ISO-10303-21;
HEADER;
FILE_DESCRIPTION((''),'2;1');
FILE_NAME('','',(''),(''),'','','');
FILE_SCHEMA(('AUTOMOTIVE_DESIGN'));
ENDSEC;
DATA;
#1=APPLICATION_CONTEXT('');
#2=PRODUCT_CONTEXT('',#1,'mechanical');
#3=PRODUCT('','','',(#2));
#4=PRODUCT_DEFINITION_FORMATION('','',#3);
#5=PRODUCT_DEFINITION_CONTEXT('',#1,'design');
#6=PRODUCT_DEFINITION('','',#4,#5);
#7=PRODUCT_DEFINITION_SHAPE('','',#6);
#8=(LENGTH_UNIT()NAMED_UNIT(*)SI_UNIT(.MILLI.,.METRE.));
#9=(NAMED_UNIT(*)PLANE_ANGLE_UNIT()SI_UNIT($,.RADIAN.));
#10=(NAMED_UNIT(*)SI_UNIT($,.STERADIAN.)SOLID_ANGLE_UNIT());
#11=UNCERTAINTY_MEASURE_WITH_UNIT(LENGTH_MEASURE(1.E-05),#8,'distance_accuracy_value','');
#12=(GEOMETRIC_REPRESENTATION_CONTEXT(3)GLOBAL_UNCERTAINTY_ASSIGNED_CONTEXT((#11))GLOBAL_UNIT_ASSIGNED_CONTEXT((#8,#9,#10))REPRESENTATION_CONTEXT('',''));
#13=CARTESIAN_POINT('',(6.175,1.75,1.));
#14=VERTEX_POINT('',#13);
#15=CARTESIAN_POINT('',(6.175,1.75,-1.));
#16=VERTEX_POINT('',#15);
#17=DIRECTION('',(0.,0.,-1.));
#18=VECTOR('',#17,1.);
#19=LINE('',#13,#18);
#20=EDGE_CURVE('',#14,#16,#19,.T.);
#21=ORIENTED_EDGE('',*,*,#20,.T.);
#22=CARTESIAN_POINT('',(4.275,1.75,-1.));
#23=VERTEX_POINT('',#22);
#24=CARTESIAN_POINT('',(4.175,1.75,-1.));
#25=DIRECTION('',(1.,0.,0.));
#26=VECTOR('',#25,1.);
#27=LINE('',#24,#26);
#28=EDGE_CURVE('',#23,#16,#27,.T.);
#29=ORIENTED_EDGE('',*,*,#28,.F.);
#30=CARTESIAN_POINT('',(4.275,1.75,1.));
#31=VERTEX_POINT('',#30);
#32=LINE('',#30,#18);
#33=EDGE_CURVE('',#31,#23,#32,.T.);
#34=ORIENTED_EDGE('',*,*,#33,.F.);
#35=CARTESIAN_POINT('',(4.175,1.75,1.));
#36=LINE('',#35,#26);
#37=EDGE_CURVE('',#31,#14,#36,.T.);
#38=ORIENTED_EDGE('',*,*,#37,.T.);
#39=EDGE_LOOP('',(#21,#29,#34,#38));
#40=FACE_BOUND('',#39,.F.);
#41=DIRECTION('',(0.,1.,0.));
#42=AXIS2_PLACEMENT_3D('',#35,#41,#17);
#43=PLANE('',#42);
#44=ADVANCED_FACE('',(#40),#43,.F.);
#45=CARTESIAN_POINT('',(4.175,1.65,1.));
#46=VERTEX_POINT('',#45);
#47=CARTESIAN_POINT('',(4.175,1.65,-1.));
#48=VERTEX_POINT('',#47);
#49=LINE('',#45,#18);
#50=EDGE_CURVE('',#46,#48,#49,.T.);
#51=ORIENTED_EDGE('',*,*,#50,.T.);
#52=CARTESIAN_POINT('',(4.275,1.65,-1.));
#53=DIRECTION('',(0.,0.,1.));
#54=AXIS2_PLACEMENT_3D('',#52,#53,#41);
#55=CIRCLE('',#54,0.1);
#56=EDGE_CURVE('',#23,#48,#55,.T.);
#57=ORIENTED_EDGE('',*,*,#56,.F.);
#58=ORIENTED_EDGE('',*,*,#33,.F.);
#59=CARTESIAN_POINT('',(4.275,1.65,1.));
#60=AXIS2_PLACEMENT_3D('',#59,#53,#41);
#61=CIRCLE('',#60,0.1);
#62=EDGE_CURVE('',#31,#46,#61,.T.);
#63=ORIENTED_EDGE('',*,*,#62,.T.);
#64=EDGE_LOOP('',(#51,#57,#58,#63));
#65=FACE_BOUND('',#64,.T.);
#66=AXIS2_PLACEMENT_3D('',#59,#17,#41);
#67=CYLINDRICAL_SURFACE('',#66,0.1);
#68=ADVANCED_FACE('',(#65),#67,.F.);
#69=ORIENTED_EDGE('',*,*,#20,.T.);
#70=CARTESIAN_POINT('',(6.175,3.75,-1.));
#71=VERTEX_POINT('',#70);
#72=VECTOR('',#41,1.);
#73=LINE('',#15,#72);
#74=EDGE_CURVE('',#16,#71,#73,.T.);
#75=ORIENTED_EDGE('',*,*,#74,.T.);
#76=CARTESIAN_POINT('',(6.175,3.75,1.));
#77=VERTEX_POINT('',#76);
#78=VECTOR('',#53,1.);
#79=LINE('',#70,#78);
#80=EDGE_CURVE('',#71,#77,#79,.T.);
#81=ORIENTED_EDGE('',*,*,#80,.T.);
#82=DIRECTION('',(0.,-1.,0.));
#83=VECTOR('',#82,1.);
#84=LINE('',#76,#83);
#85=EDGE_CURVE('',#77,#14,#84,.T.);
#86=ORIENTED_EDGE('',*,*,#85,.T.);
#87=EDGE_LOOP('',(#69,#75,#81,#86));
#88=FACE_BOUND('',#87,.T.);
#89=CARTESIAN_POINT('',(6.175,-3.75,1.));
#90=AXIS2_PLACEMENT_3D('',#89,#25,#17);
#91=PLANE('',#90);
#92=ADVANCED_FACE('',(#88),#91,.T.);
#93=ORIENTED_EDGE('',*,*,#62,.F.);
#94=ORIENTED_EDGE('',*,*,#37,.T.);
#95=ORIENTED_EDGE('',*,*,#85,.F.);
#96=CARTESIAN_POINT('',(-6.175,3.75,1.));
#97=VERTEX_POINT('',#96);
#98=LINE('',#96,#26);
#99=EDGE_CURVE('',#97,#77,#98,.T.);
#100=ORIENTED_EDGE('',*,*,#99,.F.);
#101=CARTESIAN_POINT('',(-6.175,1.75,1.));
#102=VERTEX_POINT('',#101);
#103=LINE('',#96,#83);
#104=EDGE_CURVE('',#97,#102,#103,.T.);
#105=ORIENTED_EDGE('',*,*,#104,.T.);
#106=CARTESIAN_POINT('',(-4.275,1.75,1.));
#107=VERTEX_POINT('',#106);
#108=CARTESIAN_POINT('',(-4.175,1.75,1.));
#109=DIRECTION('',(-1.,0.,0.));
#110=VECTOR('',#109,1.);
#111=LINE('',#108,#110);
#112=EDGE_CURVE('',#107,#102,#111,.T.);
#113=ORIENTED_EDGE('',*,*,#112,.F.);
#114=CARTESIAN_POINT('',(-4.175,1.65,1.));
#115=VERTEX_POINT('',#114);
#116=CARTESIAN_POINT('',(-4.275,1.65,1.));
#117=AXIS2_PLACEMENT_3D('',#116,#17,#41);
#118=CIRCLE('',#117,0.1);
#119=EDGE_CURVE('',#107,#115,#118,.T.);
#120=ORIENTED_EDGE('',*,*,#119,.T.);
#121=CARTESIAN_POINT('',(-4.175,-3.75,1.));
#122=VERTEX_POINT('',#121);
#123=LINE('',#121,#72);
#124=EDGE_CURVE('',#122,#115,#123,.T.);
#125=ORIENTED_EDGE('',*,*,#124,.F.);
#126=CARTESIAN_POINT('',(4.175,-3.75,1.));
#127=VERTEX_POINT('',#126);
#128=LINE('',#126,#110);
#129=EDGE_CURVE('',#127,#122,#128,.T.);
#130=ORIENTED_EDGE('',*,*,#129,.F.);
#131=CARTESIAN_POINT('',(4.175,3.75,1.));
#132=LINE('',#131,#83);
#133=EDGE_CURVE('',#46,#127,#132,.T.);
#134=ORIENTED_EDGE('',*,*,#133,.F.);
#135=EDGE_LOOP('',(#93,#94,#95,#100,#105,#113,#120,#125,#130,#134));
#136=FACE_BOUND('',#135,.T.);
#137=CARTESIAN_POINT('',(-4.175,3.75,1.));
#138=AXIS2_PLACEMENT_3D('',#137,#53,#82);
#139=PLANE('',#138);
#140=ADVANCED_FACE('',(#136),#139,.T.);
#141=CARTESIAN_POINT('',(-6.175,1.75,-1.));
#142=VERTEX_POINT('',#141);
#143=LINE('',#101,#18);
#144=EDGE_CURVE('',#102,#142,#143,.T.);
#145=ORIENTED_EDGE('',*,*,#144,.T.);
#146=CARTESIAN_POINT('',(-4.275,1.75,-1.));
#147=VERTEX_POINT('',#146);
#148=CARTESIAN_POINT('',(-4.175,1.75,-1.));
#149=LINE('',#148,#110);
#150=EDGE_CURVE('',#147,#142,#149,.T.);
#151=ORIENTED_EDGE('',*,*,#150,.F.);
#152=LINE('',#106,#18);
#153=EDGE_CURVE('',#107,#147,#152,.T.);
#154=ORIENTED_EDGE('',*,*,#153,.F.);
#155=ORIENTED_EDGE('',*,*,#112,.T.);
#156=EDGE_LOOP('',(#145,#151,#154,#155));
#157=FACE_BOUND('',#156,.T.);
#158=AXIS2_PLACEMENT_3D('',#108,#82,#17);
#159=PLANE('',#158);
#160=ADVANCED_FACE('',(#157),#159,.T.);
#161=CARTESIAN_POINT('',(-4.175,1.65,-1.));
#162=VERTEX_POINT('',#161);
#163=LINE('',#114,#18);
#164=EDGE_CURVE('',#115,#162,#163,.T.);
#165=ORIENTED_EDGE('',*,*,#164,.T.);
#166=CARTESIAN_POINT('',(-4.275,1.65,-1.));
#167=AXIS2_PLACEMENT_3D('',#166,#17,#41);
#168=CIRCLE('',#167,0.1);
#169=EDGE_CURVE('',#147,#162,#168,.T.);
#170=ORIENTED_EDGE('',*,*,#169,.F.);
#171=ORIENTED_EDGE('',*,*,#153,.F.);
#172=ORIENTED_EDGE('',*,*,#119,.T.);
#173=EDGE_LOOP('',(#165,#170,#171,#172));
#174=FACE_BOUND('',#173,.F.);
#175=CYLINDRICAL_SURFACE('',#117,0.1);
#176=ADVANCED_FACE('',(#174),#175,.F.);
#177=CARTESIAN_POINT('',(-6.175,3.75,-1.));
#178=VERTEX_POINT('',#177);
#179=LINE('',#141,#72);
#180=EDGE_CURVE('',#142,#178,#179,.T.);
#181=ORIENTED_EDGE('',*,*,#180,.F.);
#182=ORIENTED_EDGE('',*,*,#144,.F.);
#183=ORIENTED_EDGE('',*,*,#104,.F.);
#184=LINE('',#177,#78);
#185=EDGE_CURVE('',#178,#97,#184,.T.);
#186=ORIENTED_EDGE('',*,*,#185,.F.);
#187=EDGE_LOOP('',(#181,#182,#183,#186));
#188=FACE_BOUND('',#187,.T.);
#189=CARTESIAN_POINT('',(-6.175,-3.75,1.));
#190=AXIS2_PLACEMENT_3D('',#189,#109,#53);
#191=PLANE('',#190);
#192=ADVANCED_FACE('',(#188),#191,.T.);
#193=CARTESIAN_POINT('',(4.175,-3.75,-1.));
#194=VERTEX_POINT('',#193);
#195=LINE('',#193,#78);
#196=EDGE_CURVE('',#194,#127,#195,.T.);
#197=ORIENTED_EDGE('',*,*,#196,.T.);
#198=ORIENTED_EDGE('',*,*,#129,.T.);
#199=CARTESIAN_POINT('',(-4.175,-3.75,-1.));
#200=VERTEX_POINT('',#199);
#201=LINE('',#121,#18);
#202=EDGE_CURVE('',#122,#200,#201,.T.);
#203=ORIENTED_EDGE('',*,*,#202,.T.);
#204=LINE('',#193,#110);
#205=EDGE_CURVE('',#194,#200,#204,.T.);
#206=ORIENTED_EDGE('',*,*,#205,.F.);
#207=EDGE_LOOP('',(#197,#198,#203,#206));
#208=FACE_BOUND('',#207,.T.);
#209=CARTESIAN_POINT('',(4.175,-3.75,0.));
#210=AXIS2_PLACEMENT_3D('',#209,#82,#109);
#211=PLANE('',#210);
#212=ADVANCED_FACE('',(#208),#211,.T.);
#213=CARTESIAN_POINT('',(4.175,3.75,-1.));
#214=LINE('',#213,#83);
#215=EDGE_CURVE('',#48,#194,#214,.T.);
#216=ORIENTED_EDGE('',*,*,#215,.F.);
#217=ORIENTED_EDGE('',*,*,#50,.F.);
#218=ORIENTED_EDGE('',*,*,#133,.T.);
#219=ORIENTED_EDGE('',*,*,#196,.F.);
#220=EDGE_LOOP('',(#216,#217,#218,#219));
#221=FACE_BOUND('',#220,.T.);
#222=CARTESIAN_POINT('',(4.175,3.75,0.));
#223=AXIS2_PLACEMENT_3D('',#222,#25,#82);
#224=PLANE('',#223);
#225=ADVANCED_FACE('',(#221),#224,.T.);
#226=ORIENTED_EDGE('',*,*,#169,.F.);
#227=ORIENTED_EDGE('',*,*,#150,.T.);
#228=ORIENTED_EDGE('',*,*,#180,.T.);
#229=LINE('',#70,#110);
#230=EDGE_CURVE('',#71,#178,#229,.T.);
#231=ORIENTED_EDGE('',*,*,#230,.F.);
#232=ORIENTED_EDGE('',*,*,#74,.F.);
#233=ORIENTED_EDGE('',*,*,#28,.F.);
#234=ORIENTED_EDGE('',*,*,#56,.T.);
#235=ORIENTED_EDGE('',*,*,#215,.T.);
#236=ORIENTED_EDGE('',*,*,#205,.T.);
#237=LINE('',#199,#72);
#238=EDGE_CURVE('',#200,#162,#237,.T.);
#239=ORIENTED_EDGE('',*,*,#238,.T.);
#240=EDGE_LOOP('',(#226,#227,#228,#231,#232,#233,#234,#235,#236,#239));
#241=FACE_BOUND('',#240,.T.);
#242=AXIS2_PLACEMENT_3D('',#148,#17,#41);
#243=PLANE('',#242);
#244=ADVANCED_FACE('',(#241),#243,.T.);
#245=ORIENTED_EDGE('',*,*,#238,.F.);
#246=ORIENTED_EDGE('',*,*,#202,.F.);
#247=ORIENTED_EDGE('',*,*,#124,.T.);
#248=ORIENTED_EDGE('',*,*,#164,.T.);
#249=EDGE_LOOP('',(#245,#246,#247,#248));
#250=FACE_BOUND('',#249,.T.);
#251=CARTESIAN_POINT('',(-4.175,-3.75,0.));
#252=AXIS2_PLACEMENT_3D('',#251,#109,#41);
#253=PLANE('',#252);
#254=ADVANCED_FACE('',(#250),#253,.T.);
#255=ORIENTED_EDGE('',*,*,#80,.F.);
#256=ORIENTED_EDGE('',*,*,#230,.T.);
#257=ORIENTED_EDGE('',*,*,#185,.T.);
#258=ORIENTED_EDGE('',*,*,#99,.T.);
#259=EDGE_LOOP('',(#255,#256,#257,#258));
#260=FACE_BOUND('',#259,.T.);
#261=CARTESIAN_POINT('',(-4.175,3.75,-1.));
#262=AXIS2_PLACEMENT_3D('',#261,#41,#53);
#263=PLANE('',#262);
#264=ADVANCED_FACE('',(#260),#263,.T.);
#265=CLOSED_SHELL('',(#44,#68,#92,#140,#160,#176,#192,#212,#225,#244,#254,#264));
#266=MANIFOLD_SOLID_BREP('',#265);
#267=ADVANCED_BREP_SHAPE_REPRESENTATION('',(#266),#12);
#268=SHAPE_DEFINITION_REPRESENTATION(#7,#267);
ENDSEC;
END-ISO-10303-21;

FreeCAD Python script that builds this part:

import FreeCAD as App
import Part
import Sketcher


def edges_at(feature, points):
    """Names of the edges that pass closest to the given points."""
    edges = feature.Shape.Edges
    near = lambda p: min(range(len(edges)), key=lambda i: edges[i].distToShape(Part.Vertex(*p))[0])
    return sorted({f"Edge{near(p) + 1}" for p in points})

doc = App.newDocument("Part")
body = doc.addObject("PartDesign::Body", "Body")

sketch1 = body.newObject("Sketcher::SketchObject", "Sketch")
sketch1.AttachmentSupport = (doc.getObject("XY_Plane"), [""])
sketch1.MapMode = "FlatFace"
sketch1.addGeometry(Part.LineSegment(App.Vector(-4, -4, 0), App.Vector(4, -4, 0)), False)
sketch1.addGeometry(Part.LineSegment(App.Vector(4, -4, 0), App.Vector(4, 4, 0)), False)
sketch1.addGeometry(Part.LineSegment(App.Vector(4, 4, 0), App.Vector(-4, 4, 0)), False)
sketch1.addGeometry(Part.LineSegment(App.Vector(-4, 4, 0), App.Vector(-4, -4, 0)), False)
sketch1.addConstraint(Sketcher.Constraint("Coincident", 0, 2, 1, 1))
sketch1.addConstraint(Sketcher.Constraint("Coincident", 1, 2, 2, 1))
sketch1.addConstraint(Sketcher.Constraint("Coincident", 2, 2, 3, 1))
sketch1.addConstraint(Sketcher.Constraint("Coincident", 3, 2, 0, 1))
sketch1.addConstraint(Sketcher.Constraint("Horizontal", 0))
sketch1.addConstraint(Sketcher.Constraint("Vertical", 1))
sketch1.addConstraint(Sketcher.Constraint("Horizontal", 2))
sketch1.addConstraint(Sketcher.Constraint("Vertical", 3))
sketch1.addConstraint(Sketcher.Constraint("Symmetric", 0, 2, 2, 2, -1, 1))
sketch1.addConstraint(Sketcher.Constraint("DistanceY", 1, 1, 1, 2, 7.5))
sketch1.addConstraint(Sketcher.Constraint("DistanceX", 0, 1, 0, 2, 8.35))
pad1 = body.newObject("PartDesign::Pad", "Pad")
pad1.Profile = sketch1
pad1.Length = 2
pad1.Midplane = True

sketch2 = body.newObject("Sketcher::SketchObject", "Sketch001")
sketch2.AttachmentSupport = (doc.getObject("YZ_Plane"), [""])
sketch2.MapMode = "FlatFace"
sketch2.AttachmentOffset = App.Placement(App.Vector(0, 0, 4.175), App.Rotation())
sketch2.addGeometry(Part.LineSegment(App.Vector(1.8, -1, 0), App.Vector(3.8, -1, 0)), False)
sketch2.addGeometry(Part.LineSegment(App.Vector(3.8, -1, 0), App.Vector(3.8, 1, 0)), False)
sketch2.addGeometry(Part.LineSegment(App.Vector(3.8, 1, 0), App.Vector(1.8, 1, 0)), False)
sketch2.addGeometry(Part.LineSegment(App.Vector(1.8, 1, 0), App.Vector(1.8, -1, 0)), False)
sketch2.addConstraint(Sketcher.Constraint("Coincident", 0, 2, 1, 1))
sketch2.addConstraint(Sketcher.Constraint("Coincident", 1, 2, 2, 1))
sketch2.addConstraint(Sketcher.Constraint("Coincident", 2, 2, 3, 1))
sketch2.addConstraint(Sketcher.Constraint("Coincident", 3, 2, 0, 1))
sketch2.addConstraint(Sketcher.Constraint("Horizontal", 0))
sketch2.addConstraint(Sketcher.Constraint("Vertical", 1))
sketch2.addConstraint(Sketcher.Constraint("Horizontal", 2))
sketch2.addConstraint(Sketcher.Constraint("Vertical", 3))
sketch2.addConstraint(Sketcher.Constraint("Equal", 2, 1))
sketch2.addConstraint(Sketcher.Constraint("DistanceX", 0, 1, 0, 2, 2.0))
sketch2.addConstraint(Sketcher.Constraint("DistanceY", 0, 2, -1, 1, 1.0))
sketch2.addConstraint(Sketcher.Constraint("DistanceX", -1, 1, 0, 2, 3.75))
pad2 = body.newObject("PartDesign::Pad", "Pad001")
pad2.Profile = sketch2
pad2.Length = 2

sketch3 = body.newObject("Sketcher::SketchObject", "Sketch002")
sketch3.AttachmentSupport = (doc.getObject("YZ_Plane"), [""])
sketch3.MapMode = "FlatFace"
sketch3.AttachmentOffset = App.Placement(App.Vector(0, 0, -4.175), App.Rotation())
sketch3.addGeometry(Part.LineSegment(App.Vector(3.8, 1, 0), App.Vector(3.8, -1, 0)), False)
sketch3.addGeometry(Part.LineSegment(App.Vector(3.8, -1, 0), App.Vector(1.8, -1, 0)), False)
sketch3.addGeometry(Part.LineSegment(App.Vector(1.8, -1, 0), App.Vector(1.8, 1, 0)), False)
sketch3.addGeometry(Part.LineSegment(App.Vector(1.8, 1, 0), App.Vector(3.8, 1, 0)), False)
sketch3.addConstraint(Sketcher.Constraint("Coincident", 0, 2, 1, 1))
sketch3.addConstraint(Sketcher.Constraint("Coincident", 1, 2, 2, 1))
sketch3.addConstraint(Sketcher.Constraint("Coincident", 2, 2, 3, 1))
sketch3.addConstraint(Sketcher.Constraint("Coincident", 3, 2, 0, 1))
sketch3.addConstraint(Sketcher.Constraint("Vertical", 0))
sketch3.addConstraint(Sketcher.Constraint("Horizontal", 1))
sketch3.addConstraint(Sketcher.Constraint("Vertical", 2))
sketch3.addConstraint(Sketcher.Constraint("Horizontal", 3))
sketch3.addConstraint(Sketcher.Constraint("Equal", 3, 0))
sketch3.addConstraint(Sketcher.Constraint("DistanceX", 1, 2, 1, 1, 2.0))
sketch3.addConstraint(Sketcher.Constraint("DistanceY", 0, 2, -1, 1, 1.0))
sketch3.addConstraint(Sketcher.Constraint("DistanceX", -1, 1, 0, 2, 3.75))
pad3 = body.newObject("PartDesign::Pad", "Pad002")
pad3.Profile = sketch3
pad3.Length = 2
pad3.Reversed = True
doc.recompute()

fillet = body.newObject("PartDesign::Fillet", "Fillet")
fillet.Base = (pad3, edges_at(pad3, [(4.175, 1.75, 0), (-4.175, 1.75, 0)]))
fillet.Radius = 0.1

doc.recompute()
